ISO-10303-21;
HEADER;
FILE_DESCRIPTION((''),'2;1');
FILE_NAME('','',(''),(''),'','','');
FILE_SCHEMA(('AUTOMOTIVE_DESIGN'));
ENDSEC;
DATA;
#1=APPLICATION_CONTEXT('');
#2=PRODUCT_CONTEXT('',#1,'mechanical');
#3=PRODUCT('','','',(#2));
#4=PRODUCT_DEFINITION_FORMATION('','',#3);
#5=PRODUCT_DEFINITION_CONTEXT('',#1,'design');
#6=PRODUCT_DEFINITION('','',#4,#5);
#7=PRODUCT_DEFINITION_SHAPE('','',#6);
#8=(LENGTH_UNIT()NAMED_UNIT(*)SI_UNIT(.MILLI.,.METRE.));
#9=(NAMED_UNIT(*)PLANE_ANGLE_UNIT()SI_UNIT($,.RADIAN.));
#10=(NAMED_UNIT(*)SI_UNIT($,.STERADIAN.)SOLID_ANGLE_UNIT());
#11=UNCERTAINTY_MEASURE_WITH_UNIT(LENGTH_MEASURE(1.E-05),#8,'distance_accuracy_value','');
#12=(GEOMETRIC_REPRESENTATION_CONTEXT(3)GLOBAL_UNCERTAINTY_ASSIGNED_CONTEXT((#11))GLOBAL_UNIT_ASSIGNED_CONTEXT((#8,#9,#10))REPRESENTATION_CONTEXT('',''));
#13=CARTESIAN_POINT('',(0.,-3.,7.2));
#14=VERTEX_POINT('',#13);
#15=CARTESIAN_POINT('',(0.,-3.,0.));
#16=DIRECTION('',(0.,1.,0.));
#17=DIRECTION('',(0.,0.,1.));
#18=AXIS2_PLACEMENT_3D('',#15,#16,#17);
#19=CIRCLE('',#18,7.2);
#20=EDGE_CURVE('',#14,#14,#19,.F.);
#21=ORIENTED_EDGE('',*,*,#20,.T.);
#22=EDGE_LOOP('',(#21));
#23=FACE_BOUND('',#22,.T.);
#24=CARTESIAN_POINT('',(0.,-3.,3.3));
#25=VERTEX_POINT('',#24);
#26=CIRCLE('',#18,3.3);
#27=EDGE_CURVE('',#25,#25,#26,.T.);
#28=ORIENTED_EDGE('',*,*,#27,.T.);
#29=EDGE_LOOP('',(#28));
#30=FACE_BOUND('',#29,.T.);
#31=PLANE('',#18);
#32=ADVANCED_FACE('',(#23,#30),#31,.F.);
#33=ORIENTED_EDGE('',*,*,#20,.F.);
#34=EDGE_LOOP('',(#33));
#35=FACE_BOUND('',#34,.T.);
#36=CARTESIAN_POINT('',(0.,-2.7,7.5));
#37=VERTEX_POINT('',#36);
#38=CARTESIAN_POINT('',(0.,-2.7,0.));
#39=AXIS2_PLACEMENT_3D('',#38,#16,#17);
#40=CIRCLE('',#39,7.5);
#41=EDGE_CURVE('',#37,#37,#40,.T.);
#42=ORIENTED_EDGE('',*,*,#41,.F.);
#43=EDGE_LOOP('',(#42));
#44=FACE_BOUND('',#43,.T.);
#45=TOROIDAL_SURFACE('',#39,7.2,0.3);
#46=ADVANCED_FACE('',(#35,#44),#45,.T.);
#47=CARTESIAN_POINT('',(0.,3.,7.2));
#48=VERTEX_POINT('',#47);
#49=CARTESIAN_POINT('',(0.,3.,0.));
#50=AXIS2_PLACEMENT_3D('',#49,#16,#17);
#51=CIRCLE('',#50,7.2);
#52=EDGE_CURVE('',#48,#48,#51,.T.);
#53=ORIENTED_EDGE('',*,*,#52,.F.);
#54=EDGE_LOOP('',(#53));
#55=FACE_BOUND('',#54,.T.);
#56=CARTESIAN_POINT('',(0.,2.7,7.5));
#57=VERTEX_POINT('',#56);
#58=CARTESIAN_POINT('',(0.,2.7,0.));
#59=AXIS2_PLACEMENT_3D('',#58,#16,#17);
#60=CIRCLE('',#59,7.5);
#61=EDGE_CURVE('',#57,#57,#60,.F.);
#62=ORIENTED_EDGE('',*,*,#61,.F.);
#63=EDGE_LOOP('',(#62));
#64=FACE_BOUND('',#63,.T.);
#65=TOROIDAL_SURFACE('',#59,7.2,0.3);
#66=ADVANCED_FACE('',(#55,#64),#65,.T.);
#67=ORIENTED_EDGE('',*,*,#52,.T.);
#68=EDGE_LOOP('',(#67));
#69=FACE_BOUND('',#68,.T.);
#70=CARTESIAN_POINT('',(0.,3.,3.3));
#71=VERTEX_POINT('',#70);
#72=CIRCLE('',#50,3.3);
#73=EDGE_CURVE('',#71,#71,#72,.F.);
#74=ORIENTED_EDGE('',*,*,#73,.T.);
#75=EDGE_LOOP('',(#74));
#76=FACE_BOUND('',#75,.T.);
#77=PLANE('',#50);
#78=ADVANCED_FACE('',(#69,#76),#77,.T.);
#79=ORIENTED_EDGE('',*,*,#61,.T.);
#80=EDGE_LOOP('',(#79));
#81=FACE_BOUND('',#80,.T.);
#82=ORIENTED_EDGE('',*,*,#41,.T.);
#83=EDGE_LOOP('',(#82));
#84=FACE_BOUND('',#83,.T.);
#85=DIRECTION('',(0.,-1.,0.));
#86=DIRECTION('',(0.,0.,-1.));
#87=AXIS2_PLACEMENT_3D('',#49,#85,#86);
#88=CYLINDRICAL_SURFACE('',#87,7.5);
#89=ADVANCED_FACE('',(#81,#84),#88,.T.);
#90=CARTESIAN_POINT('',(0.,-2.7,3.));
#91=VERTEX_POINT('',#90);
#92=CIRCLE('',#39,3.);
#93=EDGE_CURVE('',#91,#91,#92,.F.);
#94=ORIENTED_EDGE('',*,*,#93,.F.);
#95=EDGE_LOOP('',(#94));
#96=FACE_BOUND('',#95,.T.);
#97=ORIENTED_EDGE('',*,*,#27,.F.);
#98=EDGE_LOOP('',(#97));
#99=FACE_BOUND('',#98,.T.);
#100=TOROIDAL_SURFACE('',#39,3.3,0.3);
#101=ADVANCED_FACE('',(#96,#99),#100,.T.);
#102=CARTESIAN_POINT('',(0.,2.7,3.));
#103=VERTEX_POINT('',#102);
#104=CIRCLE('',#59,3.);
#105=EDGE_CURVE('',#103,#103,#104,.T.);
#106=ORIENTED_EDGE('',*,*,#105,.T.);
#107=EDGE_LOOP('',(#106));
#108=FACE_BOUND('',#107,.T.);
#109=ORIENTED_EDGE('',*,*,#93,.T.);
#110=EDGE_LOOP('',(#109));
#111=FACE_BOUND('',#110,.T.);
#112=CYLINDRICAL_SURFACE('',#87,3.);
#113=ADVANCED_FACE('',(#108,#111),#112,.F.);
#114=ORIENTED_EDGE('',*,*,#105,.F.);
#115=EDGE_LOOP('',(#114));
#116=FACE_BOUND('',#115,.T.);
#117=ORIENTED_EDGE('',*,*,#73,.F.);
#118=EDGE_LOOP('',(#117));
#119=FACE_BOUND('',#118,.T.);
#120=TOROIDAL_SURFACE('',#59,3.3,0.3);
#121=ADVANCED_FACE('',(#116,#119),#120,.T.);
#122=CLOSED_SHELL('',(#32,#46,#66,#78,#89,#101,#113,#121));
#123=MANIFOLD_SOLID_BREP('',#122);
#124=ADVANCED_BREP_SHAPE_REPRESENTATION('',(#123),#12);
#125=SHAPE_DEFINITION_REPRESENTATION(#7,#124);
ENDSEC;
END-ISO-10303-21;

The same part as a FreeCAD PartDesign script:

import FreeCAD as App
import Part
import Sketcher
from FreeCAD import Vector


def edges_at(feature, points):
    """Names of the edges that pass closest to the given points."""
    edges = feature.Shape.Edges
    near = lambda p: min(range(len(edges)), key=lambda i: edges[i].distToShape(Part.Vertex(*p))[0])
    return sorted({f"Edge{near(p) + 1}" for p in points})

doc = App.newDocument("Part")
params = doc.addObject("Spreadsheet::Sheet", "Params")
for row, (alias, value) in enumerate([
    ("sketch1_diameter", "15 mm"),
    ("sketch1_diameter2", "6 mm"),
    ("pad1_length", "6 mm"),
    ("fillet_radius", "0.3 mm"),
], start=1):
    params.set(f"A{row}", alias)
    params.set(f"B{row}", "=" + value)
    params.setAlias(f"B{row}", alias)

body = doc.addObject("PartDesign::Body", "Body")

# Sketch on XZ plane
sketch1 = doc.addObject("Sketcher::SketchObject", "Sketch")
body.addObject(sketch1)
sketch1.AttachmentSupport = (doc.XZ_Plane, [""])
sketch1.MapMode = "FlatFace"
sketch1.addGeometry([
    Part.Circle(Vector(0, 0, 0), Vector(0, 0, 1), 7.5),
    Part.Circle(Vector(0, 0, 0), Vector(0, 0, 1), 3),
], False)
sketch1.addConstraint([
    Sketcher.Constraint("Coincident", 0, 3, -1, 1),
    Sketcher.Constraint("Coincident", 1, 3, -1, 1),
    Sketcher.Constraint("Diameter", 0, 15.0),
    Sketcher.Constraint("Diameter", 1, 6.0),
])
sketch1.setExpression("Constraints[2]", "Params.sketch1_diameter")
sketch1.setExpression("Constraints[3]", "Params.sketch1_diameter2")
pad1 = doc.addObject("PartDesign::Pad", "Pad")
body.addObject(pad1)
pad1.Profile = sketch1
pad1.setExpression("Length", "Params.pad1_length")
pad1.Midplane = True
doc.recompute()

fillet = doc.addObject("PartDesign::Fillet", "Fillet")
body.addObject(fillet)
fillet.Base = (pad1, edges_at(pad1, [
    (-7.5, -3, 0),
    (-7.5, 3, 0),
    (-3, -3, 0),
    (-3, 3, 0),
]))
fillet.setExpression("Radius", "Params.fillet_radius")

doc.recompute()
